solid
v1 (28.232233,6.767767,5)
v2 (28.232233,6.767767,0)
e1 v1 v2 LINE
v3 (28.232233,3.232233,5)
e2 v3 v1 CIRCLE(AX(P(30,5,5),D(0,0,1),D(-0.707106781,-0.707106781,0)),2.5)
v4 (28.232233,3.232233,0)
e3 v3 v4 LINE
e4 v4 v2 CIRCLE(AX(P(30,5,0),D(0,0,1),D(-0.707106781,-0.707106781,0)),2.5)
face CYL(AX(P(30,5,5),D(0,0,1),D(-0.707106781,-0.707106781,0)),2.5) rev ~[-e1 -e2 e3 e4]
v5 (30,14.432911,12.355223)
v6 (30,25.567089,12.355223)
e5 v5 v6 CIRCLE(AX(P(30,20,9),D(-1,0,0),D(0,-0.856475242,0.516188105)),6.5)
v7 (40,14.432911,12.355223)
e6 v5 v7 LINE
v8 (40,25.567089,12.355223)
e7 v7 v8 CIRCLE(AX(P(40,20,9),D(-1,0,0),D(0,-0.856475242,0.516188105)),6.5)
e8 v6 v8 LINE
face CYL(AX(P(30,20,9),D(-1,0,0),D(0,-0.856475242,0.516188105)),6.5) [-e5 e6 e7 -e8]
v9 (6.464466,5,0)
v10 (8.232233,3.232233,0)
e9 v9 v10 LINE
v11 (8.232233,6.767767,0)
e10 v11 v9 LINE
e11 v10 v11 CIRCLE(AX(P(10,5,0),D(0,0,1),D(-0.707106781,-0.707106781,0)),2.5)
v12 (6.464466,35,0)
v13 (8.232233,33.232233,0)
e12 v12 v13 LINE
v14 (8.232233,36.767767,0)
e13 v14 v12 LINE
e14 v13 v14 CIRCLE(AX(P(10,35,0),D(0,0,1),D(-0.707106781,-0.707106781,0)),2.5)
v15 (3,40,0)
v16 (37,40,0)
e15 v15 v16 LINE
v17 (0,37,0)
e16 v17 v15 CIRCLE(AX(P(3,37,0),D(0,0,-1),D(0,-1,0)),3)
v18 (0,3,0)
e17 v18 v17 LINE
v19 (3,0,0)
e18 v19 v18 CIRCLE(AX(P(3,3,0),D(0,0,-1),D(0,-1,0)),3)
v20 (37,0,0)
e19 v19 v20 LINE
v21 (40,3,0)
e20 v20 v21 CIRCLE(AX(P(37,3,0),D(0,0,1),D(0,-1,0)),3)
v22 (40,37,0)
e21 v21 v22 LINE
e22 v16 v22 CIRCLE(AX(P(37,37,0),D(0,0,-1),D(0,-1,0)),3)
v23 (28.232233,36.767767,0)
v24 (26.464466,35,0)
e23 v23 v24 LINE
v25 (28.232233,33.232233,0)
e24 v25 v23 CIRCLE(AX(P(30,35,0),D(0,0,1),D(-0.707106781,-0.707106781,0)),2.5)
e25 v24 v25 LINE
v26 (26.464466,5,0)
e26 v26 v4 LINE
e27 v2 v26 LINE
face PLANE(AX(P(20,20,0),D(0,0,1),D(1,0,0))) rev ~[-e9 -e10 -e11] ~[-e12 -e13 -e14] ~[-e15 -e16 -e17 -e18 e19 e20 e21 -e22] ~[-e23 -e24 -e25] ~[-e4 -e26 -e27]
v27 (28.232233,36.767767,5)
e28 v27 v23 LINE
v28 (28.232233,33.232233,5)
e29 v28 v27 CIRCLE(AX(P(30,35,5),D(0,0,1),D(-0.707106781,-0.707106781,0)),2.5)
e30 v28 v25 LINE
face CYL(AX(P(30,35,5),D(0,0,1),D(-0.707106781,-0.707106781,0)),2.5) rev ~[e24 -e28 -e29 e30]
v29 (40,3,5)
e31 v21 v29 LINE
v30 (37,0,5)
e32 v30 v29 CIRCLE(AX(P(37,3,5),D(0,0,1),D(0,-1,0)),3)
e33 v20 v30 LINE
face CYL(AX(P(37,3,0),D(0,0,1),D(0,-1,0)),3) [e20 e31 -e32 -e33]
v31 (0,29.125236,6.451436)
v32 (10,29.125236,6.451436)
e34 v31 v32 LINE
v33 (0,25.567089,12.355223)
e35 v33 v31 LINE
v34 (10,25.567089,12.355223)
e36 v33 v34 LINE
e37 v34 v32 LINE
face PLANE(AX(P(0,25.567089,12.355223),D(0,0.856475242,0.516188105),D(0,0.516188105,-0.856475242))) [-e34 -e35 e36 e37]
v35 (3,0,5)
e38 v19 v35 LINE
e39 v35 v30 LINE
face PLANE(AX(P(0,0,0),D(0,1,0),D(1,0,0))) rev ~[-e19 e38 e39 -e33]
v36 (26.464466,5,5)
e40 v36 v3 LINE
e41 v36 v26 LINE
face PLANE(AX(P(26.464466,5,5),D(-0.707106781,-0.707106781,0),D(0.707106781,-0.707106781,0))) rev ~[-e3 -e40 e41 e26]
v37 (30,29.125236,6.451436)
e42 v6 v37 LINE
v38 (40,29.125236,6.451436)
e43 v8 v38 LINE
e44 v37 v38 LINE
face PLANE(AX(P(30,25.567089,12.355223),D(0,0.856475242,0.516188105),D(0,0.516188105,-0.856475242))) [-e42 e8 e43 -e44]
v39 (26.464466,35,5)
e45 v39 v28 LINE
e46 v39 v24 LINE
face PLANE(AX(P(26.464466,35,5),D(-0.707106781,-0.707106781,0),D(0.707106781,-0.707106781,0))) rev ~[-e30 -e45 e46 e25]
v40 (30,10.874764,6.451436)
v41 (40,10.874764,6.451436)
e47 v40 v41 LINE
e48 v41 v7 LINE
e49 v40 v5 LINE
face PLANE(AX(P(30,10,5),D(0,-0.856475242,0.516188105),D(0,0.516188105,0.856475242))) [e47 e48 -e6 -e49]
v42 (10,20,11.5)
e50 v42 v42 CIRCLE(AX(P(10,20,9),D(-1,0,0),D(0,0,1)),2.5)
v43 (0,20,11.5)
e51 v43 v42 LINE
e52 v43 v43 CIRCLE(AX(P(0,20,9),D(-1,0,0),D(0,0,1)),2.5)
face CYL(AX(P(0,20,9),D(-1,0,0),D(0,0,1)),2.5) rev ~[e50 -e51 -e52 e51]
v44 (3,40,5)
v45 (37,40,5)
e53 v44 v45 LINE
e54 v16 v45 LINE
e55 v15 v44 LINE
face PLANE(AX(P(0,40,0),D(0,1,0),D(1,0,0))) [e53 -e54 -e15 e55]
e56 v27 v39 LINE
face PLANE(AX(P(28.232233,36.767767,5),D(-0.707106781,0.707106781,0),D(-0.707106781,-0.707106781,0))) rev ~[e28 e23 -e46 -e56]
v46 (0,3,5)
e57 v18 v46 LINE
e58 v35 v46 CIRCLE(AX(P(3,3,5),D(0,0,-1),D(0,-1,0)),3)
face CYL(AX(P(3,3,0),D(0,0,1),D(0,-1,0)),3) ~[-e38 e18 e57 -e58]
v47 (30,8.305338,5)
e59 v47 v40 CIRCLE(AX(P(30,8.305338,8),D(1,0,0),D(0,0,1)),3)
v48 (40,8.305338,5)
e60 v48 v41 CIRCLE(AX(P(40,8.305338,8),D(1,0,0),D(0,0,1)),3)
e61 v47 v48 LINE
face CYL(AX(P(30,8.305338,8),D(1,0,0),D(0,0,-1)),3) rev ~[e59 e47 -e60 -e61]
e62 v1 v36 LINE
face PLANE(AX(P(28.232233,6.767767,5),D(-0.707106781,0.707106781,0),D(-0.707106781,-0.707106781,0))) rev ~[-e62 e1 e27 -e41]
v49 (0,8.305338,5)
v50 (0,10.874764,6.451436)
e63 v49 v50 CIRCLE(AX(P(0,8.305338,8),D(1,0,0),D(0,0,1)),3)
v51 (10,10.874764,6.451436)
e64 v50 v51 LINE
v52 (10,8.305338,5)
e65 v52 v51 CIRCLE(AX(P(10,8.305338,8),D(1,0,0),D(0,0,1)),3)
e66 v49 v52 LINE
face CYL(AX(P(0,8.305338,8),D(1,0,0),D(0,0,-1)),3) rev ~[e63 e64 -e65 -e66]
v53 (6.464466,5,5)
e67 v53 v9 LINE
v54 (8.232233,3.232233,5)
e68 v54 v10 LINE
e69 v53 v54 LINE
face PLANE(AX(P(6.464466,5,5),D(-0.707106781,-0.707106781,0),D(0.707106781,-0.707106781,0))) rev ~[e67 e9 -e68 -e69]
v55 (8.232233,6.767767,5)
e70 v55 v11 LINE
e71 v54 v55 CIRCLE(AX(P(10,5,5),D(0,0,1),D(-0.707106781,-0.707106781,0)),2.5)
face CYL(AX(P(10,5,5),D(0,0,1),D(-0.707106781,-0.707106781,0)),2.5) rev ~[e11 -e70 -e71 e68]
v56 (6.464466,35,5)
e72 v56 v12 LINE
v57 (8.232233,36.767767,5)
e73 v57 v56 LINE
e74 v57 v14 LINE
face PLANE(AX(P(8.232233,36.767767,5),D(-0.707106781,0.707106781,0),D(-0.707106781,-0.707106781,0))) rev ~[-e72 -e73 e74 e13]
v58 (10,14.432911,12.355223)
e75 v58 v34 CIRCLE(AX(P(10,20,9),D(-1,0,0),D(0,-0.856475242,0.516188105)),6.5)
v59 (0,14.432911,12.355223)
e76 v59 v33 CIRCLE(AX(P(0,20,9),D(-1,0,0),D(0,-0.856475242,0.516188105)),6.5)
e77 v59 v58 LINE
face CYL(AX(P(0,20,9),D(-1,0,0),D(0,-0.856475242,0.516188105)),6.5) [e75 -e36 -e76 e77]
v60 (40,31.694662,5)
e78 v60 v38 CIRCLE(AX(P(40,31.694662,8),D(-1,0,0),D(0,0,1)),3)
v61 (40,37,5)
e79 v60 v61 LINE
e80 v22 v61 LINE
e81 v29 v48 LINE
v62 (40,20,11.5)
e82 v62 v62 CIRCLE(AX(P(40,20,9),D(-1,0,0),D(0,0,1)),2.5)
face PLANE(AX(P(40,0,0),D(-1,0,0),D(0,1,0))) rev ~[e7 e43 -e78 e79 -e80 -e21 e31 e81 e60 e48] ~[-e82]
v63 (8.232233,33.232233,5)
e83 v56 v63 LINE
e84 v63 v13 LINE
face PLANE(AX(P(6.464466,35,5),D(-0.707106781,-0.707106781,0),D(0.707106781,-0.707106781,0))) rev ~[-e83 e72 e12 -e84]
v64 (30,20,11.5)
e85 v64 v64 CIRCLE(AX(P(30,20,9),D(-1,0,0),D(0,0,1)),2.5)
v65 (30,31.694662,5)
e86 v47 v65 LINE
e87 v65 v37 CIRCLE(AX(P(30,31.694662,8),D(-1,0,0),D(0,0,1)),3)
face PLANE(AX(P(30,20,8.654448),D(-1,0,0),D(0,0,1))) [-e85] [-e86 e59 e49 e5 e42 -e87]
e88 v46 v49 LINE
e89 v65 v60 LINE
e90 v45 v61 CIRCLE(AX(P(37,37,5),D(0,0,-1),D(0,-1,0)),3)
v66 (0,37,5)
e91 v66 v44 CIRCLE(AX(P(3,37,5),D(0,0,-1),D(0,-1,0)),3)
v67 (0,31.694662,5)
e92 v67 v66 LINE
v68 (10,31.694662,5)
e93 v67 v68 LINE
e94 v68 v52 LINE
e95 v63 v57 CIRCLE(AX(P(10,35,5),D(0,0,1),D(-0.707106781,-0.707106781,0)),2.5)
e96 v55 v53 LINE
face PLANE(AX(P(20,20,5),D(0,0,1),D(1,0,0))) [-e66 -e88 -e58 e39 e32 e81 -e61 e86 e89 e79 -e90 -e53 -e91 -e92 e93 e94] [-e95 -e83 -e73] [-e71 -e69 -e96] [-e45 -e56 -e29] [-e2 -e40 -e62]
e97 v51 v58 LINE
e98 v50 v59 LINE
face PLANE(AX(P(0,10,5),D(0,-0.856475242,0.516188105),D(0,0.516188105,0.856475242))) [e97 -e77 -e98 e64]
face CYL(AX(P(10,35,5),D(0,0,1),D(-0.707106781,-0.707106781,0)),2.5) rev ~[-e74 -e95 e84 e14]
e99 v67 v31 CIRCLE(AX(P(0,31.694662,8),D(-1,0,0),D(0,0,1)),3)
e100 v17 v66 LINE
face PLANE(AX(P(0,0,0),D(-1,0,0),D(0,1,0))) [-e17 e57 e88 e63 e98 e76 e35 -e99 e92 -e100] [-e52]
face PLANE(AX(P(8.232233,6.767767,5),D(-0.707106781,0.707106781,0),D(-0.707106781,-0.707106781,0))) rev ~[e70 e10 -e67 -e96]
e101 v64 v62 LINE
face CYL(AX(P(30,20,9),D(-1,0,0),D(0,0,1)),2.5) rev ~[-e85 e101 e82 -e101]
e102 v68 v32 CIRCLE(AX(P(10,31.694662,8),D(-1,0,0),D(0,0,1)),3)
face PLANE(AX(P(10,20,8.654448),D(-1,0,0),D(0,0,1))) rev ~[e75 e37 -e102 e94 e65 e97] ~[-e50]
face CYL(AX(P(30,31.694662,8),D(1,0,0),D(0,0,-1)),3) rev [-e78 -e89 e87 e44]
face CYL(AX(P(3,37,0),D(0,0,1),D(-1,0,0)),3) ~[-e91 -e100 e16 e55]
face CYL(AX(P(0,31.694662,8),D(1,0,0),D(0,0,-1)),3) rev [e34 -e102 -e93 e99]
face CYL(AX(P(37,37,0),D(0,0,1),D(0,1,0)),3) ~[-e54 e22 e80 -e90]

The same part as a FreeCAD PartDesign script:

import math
import FreeCAD as App
import Part
import Sketcher
Q = App.Units.Quantity


def edges_at(feature, points):
    """Names of the edges that pass closest to the given points."""
    edges = feature.Shape.Edges
    near = lambda p: min(range(len(edges)), key=lambda i: edges[i].distToShape(Part.Vertex(*p))[0])
    return sorted({f"Edge{near(p) + 1}" for p in points})


def add_polygon(sketch, points):
    """Adds a closed chain of lines whose ends are joined by coincident constraints."""
    first, n = sketch.GeometryCount, len(points)
    for a, b in zip(points, points[1:] + points[:1]):
        sketch.addGeometry(Part.LineSegment(App.Vector(*a, 0), App.Vector(*b, 0)), False)
    for i in range(n):
        sketch.addConstraint(Sketcher.Constraint("Coincident", first + i, 2, first + (i + 1) % n, 1))

doc = App.newDocument("Part")
body = doc.addObject("PartDesign::Body", "Body")

# Sketch on XY plane
sketch1 = body.newObject("Sketcher::SketchObject", "Sketch")
sketch1.AttachmentSupport = (doc.getObject("XY_Plane"), [""])
sketch1.MapMode = "FlatFace"
add_polygon(sketch1, [(0, 40), (0, 0), (40, 0), (40, 40)])  # lines 0-3
sketch1.addConstraint([
    Sketcher.Constraint("Vertical", 0),
    Sketcher.Constraint("Horizontal", 1),
    Sketcher.Constraint("Vertical", 2),
    Sketcher.Constraint("Horizontal", 3),
    Sketcher.Constraint("Coincident", 0, 2, -1, 1),
    Sketcher.Constraint("Equal", 3, 0),
    Sketcher.Constraint("DistanceX", 1, 1, 1, 2, Q("40 mm")),
])
pad1 = body.newObject("PartDesign::Pad", "Pad")
pad1.Profile = sketch1
pad1.Length = 5

# Sketch on XY plane
sketch2 = body.newObject("Sketcher::SketchObject", "Sketch001")
sketch2.AttachmentSupport = (doc.getObject("XY_Plane"), [""])
sketch2.MapMode = "FlatFace"
sketch2.AttachmentOffset = App.Placement(App.Vector(0, 0, 5), App.Rotation())
sketch2.addGeometry([
    Part.LineSegment(App.Vector(8.2, 36.8, 0), App.Vector(6.5, 35, 0)),  # 0
    Part.LineSegment(App.Vector(6.5, 35, 0), App.Vector(8.2, 33.2, 0)),  # 1
    Part.ArcOfCircle(Part.Circle(App.Vector(10, 35, 0), App.Vector(0, 0, 1), 2.5), math.radians(-135), math.radians(135)),  # 2
    Part.LineSegment(App.Vector(26.5, 35, 0), App.Vector(28.2, 33.2, 0)),  # 3
    Part.ArcOfCircle(Part.Circle(App.Vector(30, 35, 0), App.Vector(0, 0, 1), 2.5), math.radians(-135), math.radians(135)),  # 4
    Part.LineSegment(App.Vector(28.2, 36.8, 0), App.Vector(26.5, 35, 0)),  # 5
    Part.LineSegment(App.Vector(26.5, 5, 0), App.Vector(28.2, 3.2, 0)),  # 6
    Part.ArcOfCircle(Part.Circle(App.Vector(30, 5, 0), App.Vector(0, 0, 1), 2.5), math.radians(-135), math.radians(135)),  # 7
    Part.LineSegment(App.Vector(28.2, 6.8, 0), App.Vector(26.5, 5, 0)),  # 8
    Part.LineSegment(App.Vector(6.5, 5, 0), App.Vector(8.2, 3.2, 0)),  # 9
    Part.ArcOfCircle(Part.Circle(App.Vector(10, 5, 0), App.Vector(0, 0, 1), 2.5), math.radians(-135), math.radians(135)),  # 10
    Part.LineSegment(App.Vector(8.2, 6.8, 0), App.Vector(6.5, 5, 0)),  # 11
], False)
sketch2.addConstraint([
    Sketcher.Constraint("Coincident", 0, 2, 1, 1),
    Sketcher.Constraint("Tangent", 1, 2, 2, 1),
    Sketcher.Constraint("Tangent", 2, 2, 0, 1),
    Sketcher.Constraint("Tangent", 3, 2, 4, 1),
    Sketcher.Constraint("Tangent", 4, 2, 5, 1),
    Sketcher.Constraint("Coincident", 5, 2, 3, 1),
    Sketcher.Constraint("Tangent", 6, 2, 7, 1),
    Sketcher.Constraint("Tangent", 7, 2, 8, 1),
    Sketcher.Constraint("Coincident", 8, 2, 6, 1),
    Sketcher.Constraint("Tangent", 9, 2, 10, 1),
    Sketcher.Constraint("Tangent", 10, 2, 11, 1),
    Sketcher.Constraint("Coincident", 11, 2, 9, 1),
    Sketcher.Constraint("Equal", 2, 4),
    Sketcher.Constraint("Equal", 4, 7),
    Sketcher.Constraint("Equal", 7, 10),
    Sketcher.Constraint("Perpendicular", 0, 1),
    Sketcher.Constraint("Parallel", 1, 3),
    Sketcher.Constraint("Perpendicular", 3, 5),
    Sketcher.Constraint("Perpendicular", 5, 6),
    Sketcher.Constraint("Perpendicular", 6, 8),
    Sketcher.Constraint("Perpendicular", 8, 9),
    Sketcher.Constraint("Perpendicular", 9, 11),
    Sketcher.Constraint("Horizontal", 2, 3, 4, 3),
    Sketcher.Constraint("Horizontal", 7, 3, 10, 3),
    Sketcher.Constraint("Horizontal", 4, 3, 0, 2),
    Sketcher.Constraint("Vertical", 4, 3, 7, 3),
    Sketcher.Constraint("Vertical", 2, 3, 10, 3),
    Sketcher.Constraint("Radius", 2, Q("2.5 mm")),
    Sketcher.Constraint("DistanceX", -1, 1, 2, 3, Q("10 mm")),
    Sketcher.Constraint("DistanceY", -1, 1, 2, 3, Q("35 mm")),
    Sketcher.Constraint("DistanceX", -1, 1, 4, 3, Q("30 mm")),
    Sketcher.Constraint("DistanceY", -1, 1, 7, 3, Q("5 mm")),
])
pocket1 = body.newObject("PartDesign::Pocket", "Pocket")
pocket1.Profile = sketch2
pocket1.Type = "ThroughAll"

# Sketch on YZ plane
sketch3 = body.newObject("Sketcher::SketchObject", "Sketch002")
sketch3.AttachmentSupport = (doc.getObject("YZ_Plane"), [""])
sketch3.MapMode = "FlatFace"
sketch3.addGeometry([
    Part.LineSegment(App.Vector(25.6, 12.4, 0), App.Vector(30, 5, 0)),  # 0
    Part.LineSegment(App.Vector(30, 5, 0), App.Vector(10, 5, 0)),  # 1
    Part.LineSegment(App.Vector(10, 5, 0), App.Vector(14.4, 12.4, 0)),  # 2
    Part.ArcOfCircle(Part.Circle(App.Vector(20, 9, 0), App.Vector(0, 0, 1), 6.5), math.radians(31), math.radians(149)),  # 3
    Part.Circle(App.Vector(20, 9, 0), App.Vector(0, 0, 1), 2.5),  # 4
], False)
sketch3.addConstraint([
    Sketcher.Constraint("Coincident", 0, 2, 1, 1),
    Sketcher.Constraint("Coincident", 1, 2, 2, 1),
    Sketcher.Constraint("Tangent", 2, 2, 3, 2),
    Sketcher.Constraint("Tangent", 3, 1, 0, 1),
    Sketcher.Constraint("Horizontal", 1),
    Sketcher.Constraint("Coincident", 4, 3, 3, 3),
    Sketcher.Constraint("Horizontal", 2, 2, 3, 1),
    Sketcher.Constraint("Diameter", 4, Q("5 mm")),
    Sketcher.Constraint("Radius", 3, Q("6.5 mm")),
    Sketcher.Constraint("DistanceX", 1, 2, 1, 1, Q("20 mm")),
    Sketcher.Constraint("DistanceX", -1, 1, 3, 3, Q("20 mm")),
    Sketcher.Constraint("DistanceY", -1, 1, 3, 3, Q("9 mm")),
    Sketcher.Constraint("DistanceY", -1, 1, 0, 2, Q("5 mm")),
])
pad2 = body.newObject("PartDesign::Pad", "Pad001")
pad2.Profile = sketch3
pad2.Length = 10
doc.recompute()

fillet = body.newObject("PartDesign::Fillet", "Fillet")
fillet.Base = (pad2, edges_at(pad2, [(5, 10, 5), (5, 30, 5)]))
fillet.Radius = 3
doc.recompute()

linearpattern = body.newObject("PartDesign::LinearPattern", "LinearPattern")
linearpattern.Originals = [pad2]
linearpattern.Direction = (doc.getObject("X_Axis"), [""])
linearpattern.Mode = "offset"
linearpattern.Offset = 30
linearpattern.Occurrences = 2
body.Tip = linearpattern
doc.recompute()

fillet2 = body.newObject("PartDesign::Fillet", "Fillet001")
fillet2.Base = (linearpattern, edges_at(linearpattern, [(35, 10, 5), (35, 30, 5)]))
fillet2.Radius = 3
doc.recompute()

fillet3 = body.newObject("PartDesign::Fillet", "Fillet002")
fillet3.Base = (fillet2, edges_at(fillet2, [
    (0, 40, 2.5),
    (40, 40, 2.5),
    (40, 0, 2.5),
    (0, 0, 2.5),
]))
fillet3.Radius = 3

doc.recompute()
